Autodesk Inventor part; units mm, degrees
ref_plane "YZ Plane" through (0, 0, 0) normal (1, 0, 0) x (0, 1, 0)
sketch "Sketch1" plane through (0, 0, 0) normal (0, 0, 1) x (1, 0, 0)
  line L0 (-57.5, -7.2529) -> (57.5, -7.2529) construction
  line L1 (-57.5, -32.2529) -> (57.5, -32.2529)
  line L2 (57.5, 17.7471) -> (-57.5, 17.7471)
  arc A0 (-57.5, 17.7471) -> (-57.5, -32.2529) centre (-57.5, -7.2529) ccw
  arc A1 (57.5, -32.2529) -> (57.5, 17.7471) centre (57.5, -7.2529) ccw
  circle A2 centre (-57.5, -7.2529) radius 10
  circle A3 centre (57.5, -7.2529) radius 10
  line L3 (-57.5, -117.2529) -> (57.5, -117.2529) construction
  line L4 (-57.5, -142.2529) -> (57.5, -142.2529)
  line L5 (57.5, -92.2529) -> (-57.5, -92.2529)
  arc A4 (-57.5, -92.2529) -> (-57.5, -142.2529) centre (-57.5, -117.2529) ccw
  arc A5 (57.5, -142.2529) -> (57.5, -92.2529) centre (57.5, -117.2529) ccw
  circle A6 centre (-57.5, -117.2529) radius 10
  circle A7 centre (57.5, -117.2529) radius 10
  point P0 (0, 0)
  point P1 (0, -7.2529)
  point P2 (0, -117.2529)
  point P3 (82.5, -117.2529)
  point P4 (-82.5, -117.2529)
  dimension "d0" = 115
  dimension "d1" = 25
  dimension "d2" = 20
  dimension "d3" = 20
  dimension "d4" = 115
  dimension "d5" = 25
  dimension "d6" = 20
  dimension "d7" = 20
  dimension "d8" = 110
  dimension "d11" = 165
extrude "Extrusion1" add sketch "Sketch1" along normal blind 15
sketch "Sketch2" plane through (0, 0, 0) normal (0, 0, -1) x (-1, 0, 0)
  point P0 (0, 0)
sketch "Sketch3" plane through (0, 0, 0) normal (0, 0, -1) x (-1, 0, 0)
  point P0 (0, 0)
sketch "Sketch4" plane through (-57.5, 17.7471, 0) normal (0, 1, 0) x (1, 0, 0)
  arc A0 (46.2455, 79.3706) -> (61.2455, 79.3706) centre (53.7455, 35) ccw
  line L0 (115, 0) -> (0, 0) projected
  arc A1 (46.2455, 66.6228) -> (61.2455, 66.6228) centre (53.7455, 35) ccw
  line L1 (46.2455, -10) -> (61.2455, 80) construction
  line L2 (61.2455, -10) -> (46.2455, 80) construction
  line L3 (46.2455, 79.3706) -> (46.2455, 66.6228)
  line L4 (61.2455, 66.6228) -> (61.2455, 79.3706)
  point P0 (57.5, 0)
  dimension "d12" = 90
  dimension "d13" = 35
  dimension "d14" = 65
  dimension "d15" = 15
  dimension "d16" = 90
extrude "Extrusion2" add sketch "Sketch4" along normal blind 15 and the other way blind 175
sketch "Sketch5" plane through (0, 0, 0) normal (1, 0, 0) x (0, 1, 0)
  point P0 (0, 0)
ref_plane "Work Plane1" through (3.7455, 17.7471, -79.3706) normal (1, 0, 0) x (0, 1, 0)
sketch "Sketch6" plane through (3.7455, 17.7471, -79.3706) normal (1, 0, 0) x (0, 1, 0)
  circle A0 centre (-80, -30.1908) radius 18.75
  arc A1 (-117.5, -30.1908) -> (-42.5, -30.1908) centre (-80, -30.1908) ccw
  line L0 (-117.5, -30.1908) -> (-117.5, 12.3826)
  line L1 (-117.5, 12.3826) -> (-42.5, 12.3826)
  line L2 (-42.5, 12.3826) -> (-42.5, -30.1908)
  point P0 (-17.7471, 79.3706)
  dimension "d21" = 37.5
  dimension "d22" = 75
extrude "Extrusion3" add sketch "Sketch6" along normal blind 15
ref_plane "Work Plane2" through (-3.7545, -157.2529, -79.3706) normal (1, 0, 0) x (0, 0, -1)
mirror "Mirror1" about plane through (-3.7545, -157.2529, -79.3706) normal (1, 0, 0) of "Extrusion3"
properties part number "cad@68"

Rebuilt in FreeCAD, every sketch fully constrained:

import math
import FreeCAD as App
import Part
import Sketcher
Q = App.Units.Quantity

doc = App.newDocument("Part")
body = doc.addObject("PartDesign::Body", "Body")
body.AllowCompound = True

sketch1 = doc.addObject("Sketcher::SketchObject", "Sketch")
body.addObject(sketch1)
sketch1.AttachmentSupport = (doc.XY_Plane, [""])
sketch1.MapMode = "FlatFace"
sketch1.addGeometry(Part.ArcOfCircle(Part.Circle(App.Vector(-57.5, -7.2529, 0), App.Vector(0, 0, 1), 25), math.radians(90), math.radians(270)), False)
sketch1.addGeometry(Part.LineSegment(App.Vector(-57.5, -32.2529, 0), App.Vector(57.5, -32.2529, 0)), False)
sketch1.addGeometry(Part.ArcOfCircle(Part.Circle(App.Vector(57.5, -7.2529, 0), App.Vector(0, 0, 1), 25), math.radians(-90), math.radians(90)), False)
sketch1.addGeometry(Part.LineSegment(App.Vector(57.5, 17.7471, 0), App.Vector(-57.5, 17.7471, 0)), False)
sketch1.addGeometry(Part.Circle(App.Vector(-57.5, -7.2529, 0), App.Vector(0, 0, 1), 10), False)
sketch1.addGeometry(Part.Circle(App.Vector(57.5, -7.2529, 0), App.Vector(0, 0, 1), 10), False)
sketch1.addGeometry(Part.ArcOfCircle(Part.Circle(App.Vector(-57.5, -117.2529, 0), App.Vector(0, 0, 1), 25), math.radians(90), math.radians(270)), False)
sketch1.addGeometry(Part.LineSegment(App.Vector(-57.5, -142.2529, 0), App.Vector(57.5, -142.2529, 0)), False)
sketch1.addGeometry(Part.ArcOfCircle(Part.Circle(App.Vector(57.5, -117.2529, 0), App.Vector(0, 0, 1), 25), math.radians(-90), math.radians(90)), False)
sketch1.addGeometry(Part.LineSegment(App.Vector(57.5, -92.2529, 0), App.Vector(-57.5, -92.2529, 0)), False)
sketch1.addGeometry(Part.Circle(App.Vector(-57.5, -117.2529, 0), App.Vector(0, 0, 1), 10), False)
sketch1.addGeometry(Part.Circle(App.Vector(57.5, -117.2529, 0), App.Vector(0, 0, 1), 10), False)
sketch1.addConstraint(Sketcher.Constraint("Tangent", 0, 2, 1, 1))
sketch1.addConstraint(Sketcher.Constraint("Tangent", 1, 2, 2, 1))
sketch1.addConstraint(Sketcher.Constraint("Tangent", 2, 2, 3, 1))
sketch1.addConstraint(Sketcher.Constraint("Tangent", 3, 2, 0, 1))
sketch1.addConstraint(Sketcher.Constraint("Tangent", 6, 2, 7, 1))
sketch1.addConstraint(Sketcher.Constraint("Tangent", 7, 2, 8, 1))
sketch1.addConstraint(Sketcher.Constraint("Tangent", 8, 2, 9, 1))
sketch1.addConstraint(Sketcher.Constraint("Tangent", 9, 2, 6, 1))
sketch1.addConstraint(Sketcher.Constraint("Horizontal", 1))
sketch1.addConstraint(Sketcher.Constraint("Horizontal", 3))
sketch1.addConstraint(Sketcher.Constraint("Horizontal", 7))
sketch1.addConstraint(Sketcher.Constraint("Horizontal", 9))
sketch1.addConstraint(Sketcher.Constraint("Coincident", 4, 3, 0, 3))
sketch1.addConstraint(Sketcher.Constraint("Coincident", 5, 3, 2, 3))
sketch1.addConstraint(Sketcher.Constraint("Coincident", 10, 3, 6, 3))
sketch1.addConstraint(Sketcher.Constraint("Coincident", 11, 3, 8, 3))
sketch1.addConstraint(Sketcher.Constraint("Equal", 4, 5))
sketch1.addConstraint(Sketcher.Constraint("Equal", 2, 6))
sketch1.addConstraint(Sketcher.Constraint("Equal", 5, 10))
sketch1.addConstraint(Sketcher.Constraint("Equal", 10, 11))
sketch1.addConstraint(Sketcher.Constraint("Vertical", 4, 3, 6, 3))
sketch1.addConstraint(Sketcher.Constraint("Vertical", 5, 3, 8, 3))
sketch1.addConstraint(Sketcher.Constraint("Diameter", 4, Q("20 mm")))
sketch1.addConstraint(Sketcher.Constraint("Radius", 0, Q("25 mm")))
sketch1.addConstraint(Sketcher.Constraint("DistanceX", 1, 1, 1, 2, Q("115 mm")))
sketch1.addConstraint(Sketcher.Constraint("DistanceY", 6, 3, 0, 3, Q("110 mm")))
sketch1.addConstraint(Sketcher.Constraint("DistanceX", 0, 3, -1, 1, Q("57.5 mm")))
sketch1.addConstraint(Sketcher.Constraint("DistanceY", 0, 3, -1, 1, Q("7.253 mm")))
pad1 = doc.addObject("PartDesign::Pad", "Pad")
body.addObject(pad1)
pad1.Profile = sketch1
pad1.Length = 15

sketch2 = doc.addObject("Sketcher::SketchObject", "Sketch001")
body.addObject(sketch2)
sketch2.AttachmentSupport = (doc.XZ_Plane, [""])
sketch2.MapMode = "FlatFace"
sketch2.AttachmentOffset = App.Placement(App.Vector(0, 0, -17.7471), App.Rotation())
sketch2.addGeometry(Part.LineSegment(App.Vector(-11.2545, -66.6228, 0), App.Vector(-11.2545, -79.3706, 0)), False)
sketch2.addGeometry(Part.ArcOfCircle(Part.Circle(App.Vector(-3.7545, -35, 0), App.Vector(0, 0, 1), 45.000002), math.radians(-80.405932), math.radians(260.405932)), False)
sketch2.addGeometry(Part.LineSegment(App.Vector(3.7455, -79.3706, 0), App.Vector(3.7455, -66.6228, 0)), False)
sketch2.addGeometry(Part.ArcOfCircle(Part.Circle(App.Vector(-3.7545, -35, 0), App.Vector(0, 0, 1), 32.500023), math.radians(-76.657646), math.radians(256.657646)), False)
sketch2.addConstraint(Sketcher.Constraint("Coincident", 0, 2, 1, 2))
sketch2.addConstraint(Sketcher.Constraint("Coincident", 1, 1, 2, 1))
sketch2.addConstraint(Sketcher.Constraint("Coincident", 2, 2, 3, 1))
sketch2.addConstraint(Sketcher.Constraint("Coincident", 3, 2, 0, 1))
sketch2.addConstraint(Sketcher.Constraint("Vertical", 0))
sketch2.addConstraint(Sketcher.Constraint("Vertical", 2))
sketch2.addConstraint(Sketcher.Constraint("Coincident", 3, 3, 1, 3))
sketch2.addConstraint(Sketcher.Constraint("Horizontal", 0, 2, 1, 1))
sketch2.addConstraint(Sketcher.Constraint("Radius", 1, Q("45 mm")))
sketch2.addConstraint(Sketcher.Constraint("Radius", 3, Q("32.5 mm")))
sketch2.addConstraint(Sketcher.Constraint("DistanceY", 1, 3, -1, 1, Q("35 mm")))
sketch2.addConstraint(Sketcher.Constraint("DistanceX", 0, 2, 1, 1, Q("15 mm")))
sketch2.addConstraint(Sketcher.Constraint("DistanceX", 1, 3, -1, 1, Q("3.7545 mm")))
pad2 = doc.addObject("PartDesign::Pad", "Pad001")
body.addObject(pad2)
pad2.Profile = sketch2
pad2.Type = "TwoLengths"
pad2.Length = 15
pad2.Length2 = 175
pad2.Reversed = True

sketch3 = doc.addObject("Sketcher::SketchObject", "Sketch002")
body.addObject(sketch3)
sketch3.AttachmentSupport = (doc.YZ_Plane, [""])
sketch3.MapMode = "FlatFace"
sketch3.AttachmentOffset = App.Placement(App.Vector(0, 0, 3.7455), App.Rotation())
sketch3.addGeometry(Part.LineSegment(App.Vector(-99.7529, -66.988, 0), App.Vector(-99.7529, -109.5614, 0)), False)
sketch3.addGeometry(Part.ArcOfCircle(Part.Circle(App.Vector(-62.2529, -109.5614, 0), App.Vector(0, 0, 1), 37.5), math.radians(180), math.radians(360)), False)
sketch3.addGeometry(Part.LineSegment(App.Vector(-24.7529, -109.5614, 0), App.Vector(-24.7529, -66.988, 0)), False)
sketch3.addGeometry(Part.LineSegment(App.Vector(-24.7529, -66.988, 0), App.Vector(-99.7529, -66.988, 0)), False)
sketch3.addGeometry(Part.Circle(App.Vector(-62.2529, -109.5614, 0), App.Vector(0, 0, 1), 18.75), False)
sketch3.addConstraint(Sketcher.Constraint("Tangent", 0, 2, 1, 1))
sketch3.addConstraint(Sketcher.Constraint("Tangent", 1, 2, 2, 1))
sketch3.addConstraint(Sketcher.Constraint("Coincident", 2, 2, 3, 1))
sketch3.addConstraint(Sketcher.Constraint("Coincident", 3, 2, 0, 1))
sketch3.addConstraint(Sketcher.Constraint("Vertical", 0))
sketch3.addConstraint(Sketcher.Constraint("Vertical", 2))
sketch3.addConstraint(Sketcher.Constraint("Horizontal", 3))
sketch3.addConstraint(Sketcher.Constraint("Coincident", 4, 3, 1, 3))
sketch3.addConstraint(Sketcher.Constraint("Diameter", 4, Q("37.5 mm")))
sketch3.addConstraint(Sketcher.Constraint("Radius", 1, Q("37.5 mm")))
sketch3.addConstraint(Sketcher.Constraint("DistanceY", 0, 2, 0, 1, Q("42.5734 mm")))
sketch3.addConstraint(Sketcher.Constraint("DistanceX", 1, 3, -1, 1, Q("62.253 mm")))
sketch3.addConstraint(Sketcher.Constraint("DistanceY", 2, 2, -1, 1, Q("66.988 mm")))
pad3 = doc.addObject("PartDesign::Pad", "Pad002")
body.addObject(pad3)
pad3.Profile = sketch3
pad3.Length = 15
doc.recompute()

datumplane = doc.addObject("PartDesign::Plane", "DatumPlane")
body.addObject(datumplane)
datumplane.AttachmentSupport = (doc.YZ_Plane, [""])
datumplane.MapMode = "FlatFace"
datumplane.AttachmentOffset = App.Placement(App.Vector(0, 0, -3.7545), App.Rotation())
mirrored = doc.addObject("PartDesign::Mirrored", "Mirrored")
body.addObject(mirrored)
mirrored.Originals = [pad3]
mirrored.MirrorPlane = (datumplane, [""])
body.Tip = mirrored

doc.recompute()
